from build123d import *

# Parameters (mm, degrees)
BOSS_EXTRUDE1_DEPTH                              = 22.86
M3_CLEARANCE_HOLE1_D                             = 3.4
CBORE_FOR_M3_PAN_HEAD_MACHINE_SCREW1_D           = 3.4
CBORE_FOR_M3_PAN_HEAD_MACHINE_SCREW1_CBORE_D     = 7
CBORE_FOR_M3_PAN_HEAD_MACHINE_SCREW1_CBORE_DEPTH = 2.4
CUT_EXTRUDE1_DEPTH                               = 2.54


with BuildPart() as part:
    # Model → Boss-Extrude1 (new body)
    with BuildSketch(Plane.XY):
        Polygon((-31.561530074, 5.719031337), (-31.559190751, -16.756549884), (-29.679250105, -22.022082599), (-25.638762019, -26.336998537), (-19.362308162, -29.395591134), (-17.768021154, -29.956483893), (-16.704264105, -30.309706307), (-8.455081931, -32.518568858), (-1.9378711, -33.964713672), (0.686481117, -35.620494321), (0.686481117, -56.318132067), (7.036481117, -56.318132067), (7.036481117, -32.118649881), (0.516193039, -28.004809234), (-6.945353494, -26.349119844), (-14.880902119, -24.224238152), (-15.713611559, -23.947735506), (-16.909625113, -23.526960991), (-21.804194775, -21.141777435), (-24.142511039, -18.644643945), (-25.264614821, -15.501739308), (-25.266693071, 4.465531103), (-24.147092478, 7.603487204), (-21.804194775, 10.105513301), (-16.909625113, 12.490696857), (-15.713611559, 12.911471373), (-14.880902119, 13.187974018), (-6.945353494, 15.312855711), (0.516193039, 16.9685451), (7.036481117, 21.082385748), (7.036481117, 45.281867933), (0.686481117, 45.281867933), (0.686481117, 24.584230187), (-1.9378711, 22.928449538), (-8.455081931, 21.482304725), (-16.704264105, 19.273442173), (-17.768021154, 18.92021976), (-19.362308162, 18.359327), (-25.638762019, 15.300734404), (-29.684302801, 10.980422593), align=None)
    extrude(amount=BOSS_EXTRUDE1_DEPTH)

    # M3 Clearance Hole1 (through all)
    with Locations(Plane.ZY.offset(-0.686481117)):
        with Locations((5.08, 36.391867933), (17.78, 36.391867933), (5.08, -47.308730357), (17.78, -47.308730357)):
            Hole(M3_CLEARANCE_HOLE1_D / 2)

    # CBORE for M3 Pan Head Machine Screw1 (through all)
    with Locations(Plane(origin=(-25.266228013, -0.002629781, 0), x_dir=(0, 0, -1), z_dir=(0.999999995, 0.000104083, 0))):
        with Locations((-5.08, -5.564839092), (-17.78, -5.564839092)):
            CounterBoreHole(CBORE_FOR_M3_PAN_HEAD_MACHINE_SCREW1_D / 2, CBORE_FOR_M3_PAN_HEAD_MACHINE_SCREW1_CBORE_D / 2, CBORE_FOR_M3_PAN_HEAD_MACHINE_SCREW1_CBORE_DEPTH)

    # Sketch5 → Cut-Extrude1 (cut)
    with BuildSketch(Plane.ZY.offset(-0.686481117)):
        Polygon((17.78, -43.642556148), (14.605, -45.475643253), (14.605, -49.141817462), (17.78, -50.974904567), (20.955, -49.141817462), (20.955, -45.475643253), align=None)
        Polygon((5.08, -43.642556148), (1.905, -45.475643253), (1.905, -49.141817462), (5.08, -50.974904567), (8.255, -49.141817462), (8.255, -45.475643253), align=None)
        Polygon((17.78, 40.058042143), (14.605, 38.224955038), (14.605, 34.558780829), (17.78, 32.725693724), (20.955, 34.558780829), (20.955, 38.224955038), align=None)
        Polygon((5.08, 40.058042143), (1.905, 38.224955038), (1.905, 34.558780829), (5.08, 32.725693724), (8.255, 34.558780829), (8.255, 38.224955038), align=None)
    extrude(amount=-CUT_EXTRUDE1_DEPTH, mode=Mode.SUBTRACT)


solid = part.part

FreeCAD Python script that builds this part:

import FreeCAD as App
import Part
import Sketcher
Q = App.Units.Quantity

doc = App.newDocument("Part")
body = doc.addObject("PartDesign::Body", "Body")

# Sketch on XY plane
sketch1 = body.newObject("Sketcher::SketchObject", "Sketch")
sketch1.AttachmentSupport = (doc.getObject("XY_Plane"), [""])
sketch1.MapMode = "FlatFace"
sketch1.addGeometry([
    Part.LineSegment(App.Vector(-31.6, 5.7, 0), App.Vector(-31.6, -16.8, 0)),  # 0
    Part.LineSegment(App.Vector(-31.6, -16.8, 0), App.Vector(-29.7, -22, 0)),  # 1
    Part.LineSegment(App.Vector(-29.7, -22, 0), App.Vector(-25.6, -26.3, 0)),  # 2
    Part.LineSegment(App.Vector(-25.6, -26.3, 0), App.Vector(-19.4, -29.4, 0)),  # 3
    Part.LineSegment(App.Vector(-19.4, -29.4, 0), App.Vector(-17.8, -30, 0)),  # 4
    Part.LineSegment(App.Vector(-17.8, -30, 0), App.Vector(-16.7, -30.3, 0)),  # 5
    Part.LineSegment(App.Vector(-16.7, -30.3, 0), App.Vector(-8.5, -32.5, 0)),  # 6
    Part.LineSegment(App.Vector(-8.5, -32.5, 0), App.Vector(-1.9, -34, 0)),  # 7
    Part.LineSegment(App.Vector(-1.9, -34, 0), App.Vector(0.7, -35.6, 0)),  # 8
    Part.LineSegment(App.Vector(0.7, -35.6, 0), App.Vector(0.7, -56.3, 0)),  # 9
    Part.LineSegment(App.Vector(0.7, -56.3, 0), App.Vector(7, -56.3, 0)),  # 10
    Part.LineSegment(App.Vector(7, -56.3, 0), App.Vector(7, -32.1, 0)),  # 11
    Part.LineSegment(App.Vector(7, -32.1, 0), App.Vector(0.5, -28, 0)),  # 12
    Part.LineSegment(App.Vector(0.5, -28, 0), App.Vector(-6.9, -26.3, 0)),  # 13
    Part.LineSegment(App.Vector(-6.9, -26.3, 0), App.Vector(-14.9, -24.2, 0)),  # 14
    Part.LineSegment(App.Vector(-14.9, -24.2, 0), App.Vector(-15.7, -23.9, 0)),  # 15
    Part.LineSegment(App.Vector(-15.7, -23.9, 0), App.Vector(-16.9, -23.5, 0)),  # 16
    Part.LineSegment(App.Vector(-16.9, -23.5, 0), App.Vector(-21.8, -21.1, 0)),  # 17
    Part.LineSegment(App.Vector(-21.8, -21.1, 0), App.Vector(-24.1, -18.6, 0)),  # 18
    Part.LineSegment(App.Vector(-24.1, -18.6, 0), App.Vector(-25.3, -15.5, 0)),  # 19
    Part.LineSegment(App.Vector(-25.3, -15.5, 0), App.Vector(-25.3, 4.5, 0)),  # 20
    Part.LineSegment(App.Vector(-25.3, 4.5, 0), App.Vector(-24.1, 7.6, 0)),  # 21
    Part.LineSegment(App.Vector(-24.1, 7.6, 0), App.Vector(-21.8, 10.1, 0)),  # 22
    Part.LineSegment(App.Vector(-21.8, 10.1, 0), App.Vector(-16.9, 12.5, 0)),  # 23
    Part.LineSegment(App.Vector(-16.9, 12.5, 0), App.Vector(-15.7, 12.9, 0)),  # 24
    Part.LineSegment(App.Vector(-15.7, 12.9, 0), App.Vector(-14.9, 13.2, 0)),  # 25
    Part.LineSegment(App.Vector(-14.9, 13.2, 0), App.Vector(-6.9, 15.3, 0)),  # 26
    Part.LineSegment(App.Vector(-6.9, 15.3, 0), App.Vector(0.5, 17, 0)),  # 27
    Part.LineSegment(App.Vector(0.5, 17, 0), App.Vector(7, 21.1, 0)),  # 28
    Part.LineSegment(App.Vector(7, 21.1, 0), App.Vector(7, 45.3, 0)),  # 29
    Part.LineSegment(App.Vector(7, 45.3, 0), App.Vector(0.7, 45.3, 0)),  # 30
    Part.LineSegment(App.Vector(0.7, 45.3, 0), App.Vector(0.7, 24.6, 0)),  # 31
    Part.LineSegment(App.Vector(0.7, 24.6, 0), App.Vector(-1.9, 22.9, 0)),  # 32
    Part.LineSegment(App.Vector(-1.9, 22.9, 0), App.Vector(-8.5, 21.5, 0)),  # 33
    Part.LineSegment(App.Vector(-8.5, 21.5, 0), App.Vector(-16.7, 19.3, 0)),  # 34
    Part.LineSegment(App.Vector(-16.7, 19.3, 0), App.Vector(-17.8, 18.9, 0)),  # 35
    Part.LineSegment(App.Vector(-17.8, 18.9, 0), App.Vector(-19.4, 18.4, 0)),  # 36
    Part.LineSegment(App.Vector(-19.4, 18.4, 0), App.Vector(-25.6, 15.3, 0)),  # 37
    Part.LineSegment(App.Vector(-25.6, 15.3, 0), App.Vector(-29.7, 11, 0)),  # 38
    Part.LineSegment(App.Vector(-29.7, 11, 0), App.Vector(-31.6, 5.7, 0)),  # 39
], False)
sketch1.addConstraint([
    Sketcher.Constraint("Coincident", 0, 2, 1, 1),
    Sketcher.Constraint("Coincident", 1, 2, 2, 1),
    Sketcher.Constraint("Coincident", 2, 2, 3, 1),
    Sketcher.Constraint("Coincident", 3, 2, 4, 1),
    Sketcher.Constraint("Coincident", 4, 2, 5, 1),
    Sketcher.Constraint("Coincident", 5, 2, 6, 1),
    Sketcher.Constraint("Coincident", 6, 2, 7, 1),
    Sketcher.Constraint("Coincident", 7, 2, 8, 1),
    Sketcher.Constraint("Coincident", 8, 2, 9, 1),
    Sketcher.Constraint("Coincident", 9, 2, 10, 1),
    Sketcher.Constraint("Coincident", 10, 2, 11, 1),
    Sketcher.Constraint("Coincident", 11, 2, 12, 1),
    Sketcher.Constraint("Coincident", 12, 2, 13, 1),
    Sketcher.Constraint("Coincident", 13, 2, 14, 1),
    Sketcher.Constraint("Coincident", 14, 2, 15, 1),
    Sketcher.Constraint("Coincident", 15, 2, 16, 1),
    Sketcher.Constraint("Coincident", 16, 2, 17, 1),
    Sketcher.Constraint("Coincident", 17, 2, 18, 1),
    Sketcher.Constraint("Coincident", 18, 2, 19, 1),
    Sketcher.Constraint("Coincident", 19, 2, 20, 1),
    Sketcher.Constraint("Coincident", 20, 2, 21, 1),
    Sketcher.Constraint("Coincident", 21, 2, 22, 1),
    Sketcher.Constraint("Coincident", 22, 2, 23, 1),
    Sketcher.Constraint("Coincident", 23, 2, 24, 1),
    Sketcher.Constraint("Coincident", 24, 2, 25, 1),
    Sketcher.Constraint("Coincident", 25, 2, 26, 1),
    Sketcher.Constraint("Coincident", 26, 2, 27, 1),
    Sketcher.Constraint("Coincident", 27, 2, 28, 1),
    Sketcher.Constraint("Coincident", 28, 2, 29, 1),
    Sketcher.Constraint("Coincident", 29, 2, 30, 1),
    Sketcher.Constraint("Coincident", 30, 2, 31, 1),
    Sketcher.Constraint("Coincident", 31, 2, 32, 1),
    Sketcher.Constraint("Coincident", 32, 2, 33, 1),
    Sketcher.Constraint("Coincident", 33, 2, 34, 1),
    Sketcher.Constraint("Coincident", 34, 2, 35, 1),
    Sketcher.Constraint("Coincident", 35, 2, 36, 1),
    Sketcher.Constraint("Coincident", 36, 2, 37, 1),
    Sketcher.Constraint("Coincident", 37, 2, 38, 1),
    Sketcher.Constraint("Coincident", 38, 2, 39, 1),
    Sketcher.Constraint("Coincident", 39, 2, 0, 1),
    Sketcher.Constraint("Vertical", 9),
    Sketcher.Constraint("Horizontal", 10),
    Sketcher.Constraint("Vertical", 11),
    Sketcher.Constraint("Vertical", 29),
    Sketcher.Constraint("Horizontal", 30),
    Sketcher.Constraint("Vertical", 31),
    Sketcher.Constraint("Parallel", 8, 12),
    Sketcher.Constraint("Parallel", 7, 13),
    Sketcher.Constraint("Parallel", 6, 14),
    Sketcher.Constraint("Parallel", 5, 15),
    Sketcher.Constraint("Parallel", 4, 16),
    Sketcher.Constraint("Parallel", 3, 17),
    Sketcher.Constraint("Parallel", 2, 18),
    Sketcher.Constraint("Parallel", 1, 19),
    Sketcher.Constraint("Parallel", 0, 20),
    Sketcher.Constraint("Parallel", 28, 32),
    Sketcher.Constraint("Parallel", 27, 33),
    Sketcher.Constraint("Parallel", 26, 34),
    Sketcher.Constraint("Parallel", 25, 35),
    Sketcher.Constraint("Parallel", 24, 36),
    Sketcher.Constraint("Parallel", 23, 37),
    Sketcher.Constraint("Parallel", 22, 38),
    Sketcher.Constraint("Parallel", 21, 39),
    Sketcher.Constraint("Vertical", 17, 2, 22, 2),
    Sketcher.Constraint("Vertical", 16, 2, 23, 2),
    Sketcher.Constraint("Vertical", 15, 2, 24, 2),
    Sketcher.Constraint("Vertical", 14, 2, 25, 2),
    Sketcher.Constraint("Vertical", 13, 2, 26, 2),
    Sketcher.Constraint("Vertical", 12, 2, 27, 2),
    Sketcher.Constraint("Vertical", 11, 2, 28, 2),
    Sketcher.Constraint("Vertical", 9, 2, 30, 2),
    Sketcher.Constraint("Vertical", 7, 2, 32, 2),
    Sketcher.Constraint("Vertical", 6, 2, 33, 2),
    Sketcher.Constraint("Vertical", 5, 2, 34, 2),
    Sketcher.Constraint("Vertical", 4, 2, 35, 2),
    Sketcher.Constraint("Vertical", 3, 2, 36, 2),
    Sketcher.Constraint("Vertical", 2, 2, 37, 2),
    Sketcher.Constraint("Equal", 11, 29),
    Sketcher.Constraint("Equal", 9, 31),
    Sketcher.Constraint("Equal", 17, 23),
    Sketcher.Constraint("Equal", 16, 24),
    Sketcher.Constraint("Equal", 15, 25),
    Sketcher.Constraint("Equal", 14, 26),
    Sketcher.Constraint("Equal", 13, 27),
    Sketcher.Constraint("Equal", 12, 28),
    Sketcher.Constraint("DistanceX", 10, 1, 10, 2, Q("0.25 in")),
    Sketcher.Constraint("DistanceX", 2, 2, -1, 1, Q("1.0094001 in")),
    Sketcher.Constraint("DistanceY", -1, 1, 38, 2, Q("0.4323001 in")),
    Sketcher.Constraint("DistanceY", 3, 2, 0, 2, Q("0.4976 in")),
    Sketcher.Constraint("DistanceX", 6, 2, 12, 2, Q("0.3531998 in")),
    Sketcher.Constraint("DistanceY", 2, 2, -1, 1, Q("26.336999 mm")),
    Sketcher.Constraint("DistanceY", 4, 2, 1, 2, Q("7.934401 mm")),
    Sketcher.Constraint("DistanceX", 20, 2, 17, 2, Q("3.462498 mm")),
    Sketcher.Constraint("DistanceX", 20, 2, 21, 2, Q("1.119601 mm")),
    Sketcher.Constraint("DistanceX", 0, 2, 21, 2, Q("7.412098 mm")),
    Sketcher.Constraint("DistanceY", 20, 2, 39, 2, Q("1.2535 mm")),
    Sketcher.Constraint("Distance", 0, Q("22.475581 mm")),
    Sketcher.Constraint("Distance", 2, Q("5.911349 mm")),
    Sketcher.Constraint("Distance", 3, Q("6.982039 mm")),
    Sketcher.Constraint("Distance", 5, Q("1.120868 mm")),
    Sketcher.Constraint("Distance", 7, Q("6.67573 mm")),
    Sketcher.Constraint("Distance", 14, Q("8.215111 mm")),
    Sketcher.Constraint("Distance", 19, Q("3.337209 mm")),
    Sketcher.Constraint("Distance", 20, Q("19.967271 mm")),
    Sketcher.Constraint("Distance", 38, Q("5.918741 mm")),
    Sketcher.Constraint("DistanceY", 9, 2, 9, 1, Q("20.697638 mm")),
    Sketcher.Constraint("DistanceY", 11, 1, 11, 2, Q("24.199482 mm")),
    Sketcher.Constraint("DistanceX", 0, 2, -1, 1, Q("31.559191 mm")),
    Sketcher.Constraint("DistanceY", 0, 2, -1, 1, Q("16.75655 mm")),
    Sketcher.Constraint("DistanceX", 1, 2, -1, 1, Q("29.67925 mm")),
    Sketcher.Constraint("DistanceX", 4, 2, -1, 1, Q("17.768021 mm")),
    Sketcher.Constraint("DistanceX", 6, 2, -1, 1, Q("8.455082 mm")),
    Sketcher.Constraint("DistanceY", 6, 2, -1, 1, Q("32.518569 mm")),
    Sketcher.Constraint("DistanceX", 7, 2, -1, 1, Q("1.937871 mm")),
    Sketcher.Constraint("DistanceX", -1, 1, 8, 2, Q("0.686481 mm")),
    Sketcher.Constraint("DistanceY", 11, 2, -1, 1, Q("32.11865 mm")),
    Sketcher.Constraint("DistanceY", 13, 2, -1, 1, Q("26.34912 mm")),
    Sketcher.Constraint("DistanceY", 14, 2, -1, 1, Q("24.224238 mm")),
    Sketcher.Constraint("DistanceX", 15, 2, -1, 1, Q("15.713612 mm")),
    Sketcher.Constraint("DistanceY", 16, 2, -1, 1, Q("23.526961 mm")),
])
pad1 = body.newObject("PartDesign::Pad", "Pad")
pad1.Profile = sketch1
pad1.Length = Q("0.9 in")

# Sketch on YZ plane
sketch2 = body.newObject("Sketcher::SketchObject", "Sketch001")
sketch2.AttachmentSupport = (doc.getObject("YZ_Plane"), [""])
sketch2.MapMode = "FlatFace"
sketch2.AttachmentOffset = App.Placement(App.Vector(0, 0, 0.686481), App.Rotation())
sketch2.addGeometry([
    Part.Circle(App.Vector(36.4, 5.1, 0), App.Vector(0, 0, 1), 1.7),
    Part.Circle(App.Vector(36.4, 17.8, 0), App.Vector(0, 0, 1), 1.7),
    Part.Circle(App.Vector(-47.3, 5.1, 0), App.Vector(0, 0, 1), 1.7),
    Part.Circle(App.Vector(-47.3, 17.8, 0), App.Vector(0, 0, 1), 1.7),
], False)
sketch2.addConstraint([
    Sketcher.Constraint("Equal", 0, 1),
    Sketcher.Constraint("Equal", 1, 2),
    Sketcher.Constraint("Equal", 2, 3),
    Sketcher.Constraint("Horizontal", 0, 3, 2, 3),
    Sketcher.Constraint("Horizontal", 1, 3, 3, 3),
    Sketcher.Constraint("Vertical", 0, 3, 1, 3),
    Sketcher.Constraint("Vertical", 2, 3, 3, 3),
    Sketcher.Constraint("DistanceY", -1, 1, 0, 3, Q("0.2 in")),
    Sketcher.Constraint("DistanceY", -1, 1, 1, 3, Q("0.7 in")),
    Sketcher.Constraint("Diameter", 0, Q("3.4 mm")),
    Sketcher.Constraint("DistanceX", 2, 3, 0, 3, Q("83.700598 mm")),
    Sketcher.Constraint("DistanceX", 2, 3, -1, 1, Q("47.30873 mm")),
])
doc.recompute()
hole = body.newObject("PartDesign::Hole", "Hole")
hole.Profile = sketch2
hole.ThreadType = "None"
hole.Diameter = 3.4
hole.DepthType = "ThroughAll"
hole.Reversed = True

# Sketch on an angled plane
sketch3 = body.newObject("Sketcher::SketchObject", "Sketch002")
sketch3.Placement = App.Placement(App.Vector(-25.266228, -0.00263, 0), App.Rotation(App.Vector(0, 0, -1), App.Vector(-0.000104083, 0.999999995, 0), App.Vector(0.999999995, 0.000104083, 0), "ZXY"))
sketch3.addGeometry([
    Part.Circle(App.Vector(-5.1, -5.6, 0), App.Vector(0, 0, 1), 1.7),
    Part.Circle(App.Vector(-17.8, -5.6, 0), App.Vector(0, 0, 1), 1.7),
], False)
sketch3.addConstraint([
    Sketcher.Constraint("Equal", 0, 1),
    Sketcher.Constraint("Horizontal", 0, 3, 1, 3),
    Sketcher.Constraint("DistanceX", 0, 3, -1, 1, Q("0.2 in")),
    Sketcher.Constraint("DistanceX", 1, 3, -1, 1, Q("0.7 in")),
    Sketcher.Constraint("Diameter", 0, Q("3.4 mm")),
    Sketcher.Constraint("DistanceY", 0, 3, -1, 1, Q("5.564839 mm")),
])
doc.recompute()
hole2 = body.newObject("PartDesign::Hole", "Hole001")
hole2.Profile = sketch3
hole2.ThreadType = "None"
hole2.Diameter = 3.4
hole2.DepthType = "ThroughAll"
hole2.HoleCutType = "Counterbore"
hole2.HoleCutDiameter = 7
hole2.HoleCutDepth = 2.4

# Sketch on YZ plane
sketch4 = body.newObject("Sketcher::SketchObject", "Sketch003")
sketch4.AttachmentSupport = (doc.getObject("YZ_Plane"), [""])
sketch4.MapMode = "FlatFace"
sketch4.AttachmentOffset = App.Placement(App.Vector(0, 0, 0.686481), App.Rotation())
sketch4.addGeometry([
    Part.LineSegment(App.Vector(-43.6, 17.8, 0), App.Vector(-45.5, 14.6, 0)),  # 0
    Part.LineSegment(App.Vector(-45.5, 14.6, 0), App.Vector(-49.1, 14.6, 0)),  # 1
    Part.LineSegment(App.Vector(-49.1, 14.6, 0), App.Vector(-51, 17.8, 0)),  # 2
    Part.LineSegment(App.Vector(-51, 17.8, 0), App.Vector(-49.1, 21, 0)),  # 3
    Part.LineSegment(App.Vector(-49.1, 21, 0), App.Vector(-45.5, 21, 0)),  # 4
    Part.LineSegment(App.Vector(-45.5, 21, 0), App.Vector(-43.6, 17.8, 0)),  # 5
    Part.LineSegment(App.Vector(-43.6, 5.1, 0), App.Vector(-45.5, 1.9, 0)),  # 6
    Part.LineSegment(App.Vector(-45.5, 1.9, 0), App.Vector(-49.1, 1.9, 0)),  # 7
    Part.LineSegment(App.Vector(-49.1, 1.9, 0), App.Vector(-51, 5.1, 0)),  # 8
    Part.LineSegment(App.Vector(-51, 5.1, 0), App.Vector(-49.1, 8.3, 0)),  # 9
    Part.LineSegment(App.Vector(-49.1, 8.3, 0), App.Vector(-45.5, 8.3, 0)),  # 10
    Part.LineSegment(App.Vector(-45.5, 8.3, 0), App.Vector(-43.6, 5.1, 0)),  # 11
    Part.LineSegment(App.Vector(40.1, 17.8, 0), App.Vector(38.2, 14.6, 0)),  # 12
    Part.LineSegment(App.Vector(38.2, 14.6, 0), App.Vector(34.6, 14.6, 0)),  # 13
    Part.LineSegment(App.Vector(34.6, 14.6, 0), App.Vector(32.7, 17.8, 0)),  # 14
    Part.LineSegment(App.Vector(32.7, 17.8, 0), App.Vector(34.6, 21, 0)),  # 15
    Part.LineSegment(App.Vector(34.6, 21, 0), App.Vector(38.2, 21, 0)),  # 16
    Part.LineSegment(App.Vector(38.2, 21, 0), App.Vector(40.1, 17.8, 0)),  # 17
    Part.LineSegment(App.Vector(40.1, 5.1, 0), App.Vector(38.2, 1.9, 0)),  # 18
    Part.LineSegment(App.Vector(38.2, 1.9, 0), App.Vector(34.6, 1.9, 0)),  # 19
    Part.LineSegment(App.Vector(34.6, 1.9, 0), App.Vector(32.7, 5.1, 0)),  # 20
    Part.LineSegment(App.Vector(32.7, 5.1, 0), App.Vector(34.6, 8.3, 0)),  # 21
    Part.LineSegment(App.Vector(34.6, 8.3, 0), App.Vector(38.2, 8.3, 0)),  # 22
    Part.LineSegment(App.Vector(38.2, 8.3, 0), App.Vector(40.1, 5.1, 0)),  # 23
], False)
sketch4.addConstraint([
    Sketcher.Constraint("Coincident", 0, 2, 1, 1),
    Sketcher.Constraint("Coincident", 1, 2, 2, 1),
    Sketcher.Constraint("Coincident", 2, 2, 3, 1),
    Sketcher.Constraint("Coincident", 3, 2, 4, 1),
    Sketcher.Constraint("Coincident", 4, 2, 5, 1),
    Sketcher.Constraint("Coincident", 5, 2, 0, 1),
    Sketcher.Constraint("Coincident", 6, 2, 7, 1),
    Sketcher.Constraint("Coincident", 7, 2, 8, 1),
    Sketcher.Constraint("Coincident", 8, 2, 9, 1),
    Sketcher.Constraint("Coincident", 9, 2, 10, 1),
    Sketcher.Constraint("Coincident", 10, 2, 11, 1),
    Sketcher.Constraint("Coincident", 11, 2, 6, 1),
    Sketcher.Constraint("Coincident", 12, 2, 13, 1),
    Sketcher.Constraint("Coincident", 13, 2, 14, 1),
    Sketcher.Constraint("Coincident", 14, 2, 15, 1),
    Sketcher.Constraint("Coincident", 15, 2, 16, 1),
    Sketcher.Constraint("Coincident", 16, 2, 17, 1),
    Sketcher.Constraint("Coincident", 17, 2, 12, 1),
    Sketcher.Constraint("Coincident", 18, 2, 19, 1),
    Sketcher.Constraint("Coincident", 19, 2, 20, 1),
    Sketcher.Constraint("Coincident", 20, 2, 21, 1),
    Sketcher.Constraint("Coincident", 21, 2, 22, 1),
    Sketcher.Constraint("Coincident", 22, 2, 23, 1),
    Sketcher.Constraint("Coincident", 23, 2, 18, 1),
    Sketcher.Constraint("Horizontal", 1),
    Sketcher.Constraint("Horizontal", 4),
    Sketcher.Constraint("Horizontal", 7),
    Sketcher.Constraint("Horizontal", 10),
    Sketcher.Constraint("Horizontal", 13),
    Sketcher.Constraint("Horizontal", 16),
    Sketcher.Constraint("Horizontal", 19),
    Sketcher.Constraint("Horizontal", 22),
    Sketcher.Constraint("Parallel", 0, 3),
    Sketcher.Constraint("Parallel", 2, 5),
    Sketcher.Constraint("Parallel", 3, 6),
    Sketcher.Constraint("Parallel", 5, 8),
    Sketcher.Constraint("Parallel", 6, 9),
    Sketcher.Constraint("Parallel", 8, 11),
    Sketcher.Constraint("Parallel", 9, 12),
    Sketcher.Constraint("Parallel", 11, 14),
    Sketcher.Constraint("Parallel", 12, 15),
    Sketcher.Constraint("Parallel", 14, 17),
    Sketcher.Constraint("Parallel", 15, 18),
    Sketcher.Constraint("Parallel", 17, 20),
    Sketcher.Constraint("Parallel", 18, 21),
    Sketcher.Constraint("Parallel", 20, 23),
    Sketcher.Constraint("Horizontal", 2, 2, 5, 2),
    Sketcher.Constraint("Horizontal", 8, 2, 11, 2),
    Sketcher.Constraint("Horizontal", 1, 2, 12, 2),
    Sketcher.Constraint("Horizontal", 5, 2, 14, 2),
    Sketcher.Constraint("Horizontal", 4, 2, 15, 2),
    Sketcher.Constraint("Horizontal", 14, 2, 17, 2),
    Sketcher.Constraint("Horizontal", 7, 2, 18, 2),
    Sketcher.Constraint("Horizontal", 11, 2, 20, 2),
    Sketcher.Constraint("Horizontal", 10, 2, 21, 2),
    Sketcher.Constraint("Horizontal", 20, 2, 23, 2),
    Sketcher.Constraint("Vertical", 1, 2, 3, 2),
    Sketcher.Constraint("Vertical", 0, 2, 4, 2),
    Sketcher.Constraint("Vertical", 4, 2, 6, 2),
    Sketcher.Constraint("Vertical", 3, 2, 7, 2),
    Sketcher.Constraint("Vertical", 2, 2, 8, 2),
    Sketcher.Constraint("Vertical", 7, 2, 9, 2),
    Sketcher.Constraint("Vertical", 16, 2, 18, 2),
    Sketcher.Constraint("Vertical", 15, 2, 19, 2),
    Sketcher.Constraint("Equal", 10, 13),
    Sketcher.Constraint("Angle", 0, Q("-120 deg")),
    Sketcher.Constraint("DistanceY", -1, 1, 2, 2, Q("0.7 in")),
    Sketcher.Constraint("DistanceY", -1, 1, 8, 2, Q("0.2 in")),
    Sketcher.Constraint("DistanceY", 1, 2, 3, 2, Q("0.25 in")),
    Sketcher.Constraint("DistanceX", 0, 2, 12, 2, Q("83.700598 mm")),
    Sketcher.Constraint("DistanceX", 1, 2, 1, 1, Q("3.666174 mm")),
    Sketcher.Constraint("DistanceX", -1, 1, 13, 2, Q("34.558781 mm")),
])
pocket1 = body.newObject("PartDesign::Pocket", "Pocket")
pocket1.Profile = sketch4
pocket1.Length = Q("0.1 in")
pocket1.Reversed = True

doc.recompute()
